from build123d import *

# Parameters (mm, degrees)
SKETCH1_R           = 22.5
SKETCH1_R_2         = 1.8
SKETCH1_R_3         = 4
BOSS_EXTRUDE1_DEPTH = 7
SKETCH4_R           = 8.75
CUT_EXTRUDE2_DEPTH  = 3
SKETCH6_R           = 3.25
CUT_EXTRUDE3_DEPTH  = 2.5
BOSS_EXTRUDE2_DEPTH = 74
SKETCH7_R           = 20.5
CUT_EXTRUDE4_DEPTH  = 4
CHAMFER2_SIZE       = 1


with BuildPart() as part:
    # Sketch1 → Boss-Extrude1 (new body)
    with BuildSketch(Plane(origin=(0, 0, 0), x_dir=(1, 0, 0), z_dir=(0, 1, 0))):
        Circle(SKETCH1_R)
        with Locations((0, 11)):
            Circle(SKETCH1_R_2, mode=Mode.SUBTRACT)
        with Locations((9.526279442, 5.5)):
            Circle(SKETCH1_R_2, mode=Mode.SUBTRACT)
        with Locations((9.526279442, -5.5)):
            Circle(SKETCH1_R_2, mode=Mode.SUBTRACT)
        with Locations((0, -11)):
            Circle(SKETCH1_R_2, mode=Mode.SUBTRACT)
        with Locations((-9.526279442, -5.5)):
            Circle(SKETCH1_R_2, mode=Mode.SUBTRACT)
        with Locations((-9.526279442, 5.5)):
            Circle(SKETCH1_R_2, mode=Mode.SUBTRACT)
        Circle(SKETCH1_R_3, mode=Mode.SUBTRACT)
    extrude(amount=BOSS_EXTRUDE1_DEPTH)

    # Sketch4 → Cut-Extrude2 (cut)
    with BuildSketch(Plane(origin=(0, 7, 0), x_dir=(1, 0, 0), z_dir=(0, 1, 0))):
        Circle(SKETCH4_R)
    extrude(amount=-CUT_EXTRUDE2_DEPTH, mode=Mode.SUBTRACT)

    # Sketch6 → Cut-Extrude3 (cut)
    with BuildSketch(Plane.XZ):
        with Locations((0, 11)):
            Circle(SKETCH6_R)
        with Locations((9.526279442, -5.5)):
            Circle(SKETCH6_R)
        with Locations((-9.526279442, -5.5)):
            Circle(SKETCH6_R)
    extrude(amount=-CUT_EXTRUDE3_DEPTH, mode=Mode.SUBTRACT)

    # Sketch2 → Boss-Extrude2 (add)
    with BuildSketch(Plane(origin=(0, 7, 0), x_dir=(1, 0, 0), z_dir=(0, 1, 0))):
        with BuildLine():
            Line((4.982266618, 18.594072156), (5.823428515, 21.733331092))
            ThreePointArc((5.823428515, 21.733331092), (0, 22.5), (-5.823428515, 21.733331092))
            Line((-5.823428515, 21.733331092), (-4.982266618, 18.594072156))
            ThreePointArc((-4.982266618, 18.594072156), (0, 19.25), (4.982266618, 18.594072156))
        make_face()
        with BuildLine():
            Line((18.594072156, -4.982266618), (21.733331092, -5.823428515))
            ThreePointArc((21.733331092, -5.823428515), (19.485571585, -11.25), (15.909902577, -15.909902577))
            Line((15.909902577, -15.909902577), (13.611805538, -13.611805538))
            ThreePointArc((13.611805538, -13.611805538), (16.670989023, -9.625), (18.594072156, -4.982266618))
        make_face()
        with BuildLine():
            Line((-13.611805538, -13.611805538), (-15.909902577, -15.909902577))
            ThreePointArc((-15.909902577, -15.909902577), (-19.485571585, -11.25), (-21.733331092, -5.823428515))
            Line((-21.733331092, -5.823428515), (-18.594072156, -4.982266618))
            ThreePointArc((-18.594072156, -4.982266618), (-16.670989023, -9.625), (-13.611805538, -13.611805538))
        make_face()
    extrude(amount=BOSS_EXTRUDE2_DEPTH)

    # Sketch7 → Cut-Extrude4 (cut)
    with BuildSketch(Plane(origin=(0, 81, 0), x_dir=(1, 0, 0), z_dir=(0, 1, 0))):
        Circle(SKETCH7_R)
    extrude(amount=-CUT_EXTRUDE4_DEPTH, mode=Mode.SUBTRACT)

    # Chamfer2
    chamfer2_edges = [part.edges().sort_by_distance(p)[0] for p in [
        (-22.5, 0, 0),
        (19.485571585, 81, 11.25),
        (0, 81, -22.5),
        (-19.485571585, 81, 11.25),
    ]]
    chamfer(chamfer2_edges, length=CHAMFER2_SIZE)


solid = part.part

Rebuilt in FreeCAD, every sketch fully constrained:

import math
import FreeCAD as App
import Part
import Sketcher
Q = App.Units.Quantity


def edges_at(feature, points):
    """Names of the edges that pass closest to the given points."""
    edges = feature.Shape.Edges
    near = lambda p: min(range(len(edges)), key=lambda i: edges[i].distToShape(Part.Vertex(*p))[0])
    return sorted({f"Edge{near(p) + 1}" for p in points})

doc = App.newDocument("Part")
body = doc.addObject("PartDesign::Body", "Body")

# Sketch on XZ plane
sketch1 = doc.addObject("Sketcher::SketchObject", "Sketch")
body.addObject(sketch1)
sketch1.AttachmentSupport = (doc.XZ_Plane, [""])
sketch1.MapMode = "FlatFace"
sketch1.addGeometry(Part.Circle(App.Vector(0, 0, 0), App.Vector(0, 0, 1), 22.5), False)
sketch1.addGeometry(Part.Circle(App.Vector(0, 11, 0), App.Vector(0, 0, 1), 1.8), False)
sketch1.addGeometry(Part.Circle(App.Vector(-9.5, 5.5, 0), App.Vector(0, 0, 1), 1.8), False)
sketch1.addGeometry(Part.Circle(App.Vector(9.5, 5.5, 0), App.Vector(0, 0, 1), 1.8), False)
sketch1.addGeometry(Part.Circle(App.Vector(-9.5, -5.5, 0), App.Vector(0, 0, 1), 1.8), False)
sketch1.addGeometry(Part.Circle(App.Vector(0, 0, 0), App.Vector(0, 0, 1), 4), False)
sketch1.addGeometry(Part.Circle(App.Vector(0, -11, 0), App.Vector(0, 0, 1), 1.8), False)
sketch1.addGeometry(Part.Circle(App.Vector(9.5, -5.5, 0), App.Vector(0, 0, 1), 1.8), False)
sketch1.addConstraint(Sketcher.Constraint("Coincident", 0, 3, -1, 1))
sketch1.addConstraint(Sketcher.Constraint("Coincident", 5, 3, -1, 1))
sketch1.addConstraint(Sketcher.Constraint("Equal", 1, 2))
sketch1.addConstraint(Sketcher.Constraint("Equal", 2, 3))
sketch1.addConstraint(Sketcher.Constraint("Equal", 3, 4))
sketch1.addConstraint(Sketcher.Constraint("Equal", 4, 6))
sketch1.addConstraint(Sketcher.Constraint("Equal", 6, 7))
sketch1.addConstraint(Sketcher.Constraint("Symmetric", 3, 3, 4, 3, -1, 1))
sketch1.addConstraint(Sketcher.Constraint("Symmetric", 1, 3, 6, 3, -1, 1))
sketch1.addConstraint(Sketcher.Constraint("Symmetric", 2, 3, 7, 3, -1, 1))
sketch1.addConstraint(Sketcher.Constraint("Symmetric", 2, 3, 3, 3, -2))
sketch1.addConstraint(Sketcher.Constraint("PointOnObject", 1, 3, -2))
sketch1.addConstraint(Sketcher.Constraint("Diameter", 0, 45.0))
sketch1.addConstraint(Sketcher.Constraint("Diameter", 5, 8.0))
sketch1.addConstraint(Sketcher.Constraint("Diameter", 1, 3.6))
sketch1.addConstraint(Sketcher.Constraint("DistanceY", -1, 1, 1, 3, 11.0))
sketch1.addConstraint(Sketcher.Constraint("DistanceY", 4, 3, 2, 3, 11.0))
sketch1.addConstraint(Sketcher.Constraint("DistanceX", 2, 3, -1, 1, 9.526279))
pad1 = doc.addObject("PartDesign::Pad", "Pad")
body.addObject(pad1)
pad1.Profile = sketch1
pad1.Length = 7
pad1.Reversed = True

# Sketch on XZ plane
sketch2 = doc.addObject("Sketcher::SketchObject", "Sketch001")
body.addObject(sketch2)
sketch2.AttachmentSupport = (doc.XZ_Plane, [""])
sketch2.MapMode = "FlatFace"
sketch2.AttachmentOffset = App.Placement(App.Vector(0, 0, -7), App.Rotation())
sketch2.addGeometry(Part.Circle(App.Vector(0, 0, 0), App.Vector(0, 0, 1), 9), False)
sketch2.addConstraint(Sketcher.Constraint("Coincident", 0, 3, -1, 1))
sketch2.addConstraint(Sketcher.Constraint("Diameter", 0, 17.5))
pocket1 = doc.addObject("PartDesign::Pocket", "Pocket")
body.addObject(pocket1)
pocket1.Profile = sketch2
pocket1.Length = 3
pocket1.Reversed = True

# Sketch on XZ plane
sketch3 = doc.addObject("Sketcher::SketchObject", "Sketch002")
body.addObject(sketch3)
sketch3.AttachmentSupport = (doc.XZ_Plane, [""])
sketch3.MapMode = "FlatFace"
sketch3.addGeometry(Part.Circle(App.Vector(0, 11, 0), App.Vector(0, 0, 1), 3.2), False)
sketch3.addGeometry(Part.Circle(App.Vector(9.5, -5.5, 0), App.Vector(0, 0, 1), 3.2), False)
sketch3.addGeometry(Part.Circle(App.Vector(-9.5, -5.5, 0), App.Vector(0, 0, 1), 3.2), False)
sketch3.addConstraint(Sketcher.Constraint("Equal", 0, 1))
sketch3.addConstraint(Sketcher.Constraint("Equal", 1, 2))
sketch3.addConstraint(Sketcher.Constraint("Symmetric", 1, 3, 2, 3, -2))
sketch3.addConstraint(Sketcher.Constraint("PointOnObject", 0, 3, -2))
sketch3.addConstraint(Sketcher.Constraint("Diameter", 0, 6.5))
sketch3.addConstraint(Sketcher.Constraint("DistanceY", -1, 1, 0, 3, 11.0))
sketch3.addConstraint(Sketcher.Constraint("DistanceY", 1, 3, -1, 1, 5.5))
sketch3.addConstraint(Sketcher.Constraint("DistanceX", -1, 1, 1, 3, 9.526279))
pocket2 = doc.addObject("PartDesign::Pocket", "Pocket001")
body.addObject(pocket2)
pocket2.Profile = sketch3
pocket2.Length = 2.5

# Sketch on XZ plane
sketch4 = doc.addObject("Sketcher::SketchObject", "Sketch003")
body.addObject(sketch4)
sketch4.AttachmentSupport = (doc.XZ_Plane, [""])
sketch4.MapMode = "FlatFace"
sketch4.AttachmentOffset = App.Placement(App.Vector(0, 0, -7), App.Rotation())
sketch4.addGeometry(Part.LineSegment(App.Vector(5, -18.6, 0), App.Vector(5.8, -21.7, 0)), False)
sketch4.addGeometry(Part.ArcOfCircle(Part.Circle(App.Vector(0, 0, 0), App.Vector(0, 0, 1), 22.5), math.radians(-105), math.radians(-75)), False)
sketch4.addGeometry(Part.LineSegment(App.Vector(-5.8, -21.7, 0), App.Vector(-5, -18.6, 0)), False)
sketch4.addGeometry(Part.ArcOfCircle(Part.Circle(App.Vector(0, 0, 0), App.Vector(0, 0, 1), 19.2), math.radians(-105), math.radians(-75)), False)
sketch4.addGeometry(Part.LineSegment(App.Vector(21.7, 5.8, 0), App.Vector(18.6, 5, 0)), False)
sketch4.addGeometry(Part.ArcOfCircle(Part.Circle(App.Vector(0, 0, 0), App.Vector(0, 0, 1), 19.2), math.radians(15), math.radians(45)), False)
sketch4.addGeometry(Part.LineSegment(App.Vector(13.6, 13.6, 0), App.Vector(15.9, 15.9, 0)), False)
sketch4.addGeometry(Part.ArcOfCircle(Part.Circle(App.Vector(0, 0, 0), App.Vector(0, 0, 1), 22.5), math.radians(15), math.radians(45)), False)
sketch4.addGeometry(Part.LineSegment(App.Vector(-15.9, 15.9, 0), App.Vector(-13.6, 13.6, 0)), False)
sketch4.addGeometry(Part.ArcOfCircle(Part.Circle(App.Vector(0, 0, 0), App.Vector(0, 0, 1), 19.2), math.radians(135), math.radians(165)), False)
sketch4.addGeometry(Part.LineSegment(App.Vector(-18.6, 5, 0), App.Vector(-21.7, 5.8, 0)), False)
sketch4.addGeometry(Part.ArcOfCircle(Part.Circle(App.Vector(0, 0, 0), App.Vector(0, 0, 1), 22.5), math.radians(135), math.radians(165)), False)
sketch4.addConstraint(Sketcher.Constraint("Coincident", 0, 2, 1, 2))
sketch4.addConstraint(Sketcher.Constraint("Coincident", 1, 1, 2, 1))
sketch4.addConstraint(Sketcher.Constraint("Coincident", 2, 2, 3, 1))
sketch4.addConstraint(Sketcher.Constraint("Coincident", 3, 2, 0, 1))
sketch4.addConstraint(Sketcher.Constraint("Coincident", 4, 2, 5, 1))
sketch4.addConstraint(Sketcher.Constraint("Coincident", 5, 2, 6, 1))
sketch4.addConstraint(Sketcher.Constraint("Coincident", 6, 2, 7, 2))
sketch4.addConstraint(Sketcher.Constraint("Coincident", 7, 1, 4, 1))
sketch4.addConstraint(Sketcher.Constraint("Coincident", 8, 2, 9, 1))
sketch4.addConstraint(Sketcher.Constraint("Coincident", 9, 2, 10, 1))
sketch4.addConstraint(Sketcher.Constraint("Coincident", 10, 2, 11, 2))
sketch4.addConstraint(Sketcher.Constraint("Coincident", 11, 1, 8, 1))
sketch4.addConstraint(Sketcher.Constraint("Coincident", 1, 3, -1, 1))
sketch4.addConstraint(Sketcher.Constraint("Coincident", 3, 3, -1, 1))
sketch4.addConstraint(Sketcher.Constraint("Coincident", 5, 3, -1, 1))
sketch4.addConstraint(Sketcher.Constraint("Coincident", 7, 3, -1, 1))
sketch4.addConstraint(Sketcher.Constraint("Coincident", 9, 3, -1, 1))
sketch4.addConstraint(Sketcher.Constraint("Coincident", 11, 3, -1, 1))
sketch4.addConstraint(Sketcher.Constraint("Equal", 3, 5))
sketch4.addConstraint(Sketcher.Constraint("Equal", 1, 7))
sketch4.addConstraint(Sketcher.Constraint("Equal", 5, 9))
sketch4.addConstraint(Sketcher.Constraint("Equal", 7, 11))
sketch4.addConstraint(Sketcher.Constraint("Perpendicular", 0, 4))
sketch4.addConstraint(Sketcher.Constraint("Perpendicular", 6, 8))
sketch4.addConstraint(Sketcher.Constraint("Perpendicular", 2, 10))
sketch4.addConstraint(Sketcher.Constraint("Horizontal", 0, 2, 1, 1))
sketch4.addConstraint(Sketcher.Constraint("Horizontal", 2, 2, 3, 2))
sketch4.addConstraint(Sketcher.Constraint("Horizontal", 5, 2, 8, 2))
sketch4.addConstraint(Sketcher.Constraint("Horizontal", 4, 2, 9, 2))
sketch4.addConstraint(Sketcher.Constraint("Horizontal", 6, 2, 11, 1))
sketch4.addConstraint(Sketcher.Constraint("Radius", 1, 22.5))
sketch4.addConstraint(Sketcher.Constraint("Angle", 0, Q("-75 deg")))
sketch4.addConstraint(Sketcher.Constraint("Radius", 3, 19.25))
sketch4.addConstraint(Sketcher.Constraint("DistanceX", -1, 1, 0, 2, 5.823429))
sketch4.addConstraint(Sketcher.Constraint("DistanceX", -1, 1, 7, 1, 21.733331))
sketch4.addConstraint(Sketcher.Constraint("DistanceY", 4, 2, 5, 2, 8.629539))
pad2 = doc.addObject("PartDesign::Pad", "Pad001")
body.addObject(pad2)
pad2.Profile = sketch4
pad2.Length = 74
pad2.Reversed = True

# Sketch on XZ plane
sketch5 = doc.addObject("Sketcher::SketchObject", "Sketch004")
body.addObject(sketch5)
sketch5.AttachmentSupport = (doc.XZ_Plane, [""])
sketch5.MapMode = "FlatFace"
sketch5.AttachmentOffset = App.Placement(App.Vector(0, 0, -81), App.Rotation())
sketch5.addGeometry(Part.Circle(App.Vector(0, 0, 0), App.Vector(0, 0, 1), 20), False)
sketch5.addConstraint(Sketcher.Constraint("Coincident", 0, 3, -1, 1))
sketch5.addConstraint(Sketcher.Constraint("Diameter", 0, 41.0))
pocket3 = doc.addObject("PartDesign::Pocket", "Pocket002")
body.addObject(pocket3)
pocket3.Profile = sketch5
pocket3.Length = 4
pocket3.Reversed = True
doc.recompute()

chamfer = doc.addObject("PartDesign::Chamfer", "Chamfer")
body.addObject(chamfer)
chamfer.Base = (pocket3, edges_at(pocket3, [
    (-22.5, 0, 0),
    (19.486, 81, 11.25),
    (0, 81, -22.5),
    (-19.486, 81, 11.25),
]))
chamfer.Size = 1

doc.recompute()
